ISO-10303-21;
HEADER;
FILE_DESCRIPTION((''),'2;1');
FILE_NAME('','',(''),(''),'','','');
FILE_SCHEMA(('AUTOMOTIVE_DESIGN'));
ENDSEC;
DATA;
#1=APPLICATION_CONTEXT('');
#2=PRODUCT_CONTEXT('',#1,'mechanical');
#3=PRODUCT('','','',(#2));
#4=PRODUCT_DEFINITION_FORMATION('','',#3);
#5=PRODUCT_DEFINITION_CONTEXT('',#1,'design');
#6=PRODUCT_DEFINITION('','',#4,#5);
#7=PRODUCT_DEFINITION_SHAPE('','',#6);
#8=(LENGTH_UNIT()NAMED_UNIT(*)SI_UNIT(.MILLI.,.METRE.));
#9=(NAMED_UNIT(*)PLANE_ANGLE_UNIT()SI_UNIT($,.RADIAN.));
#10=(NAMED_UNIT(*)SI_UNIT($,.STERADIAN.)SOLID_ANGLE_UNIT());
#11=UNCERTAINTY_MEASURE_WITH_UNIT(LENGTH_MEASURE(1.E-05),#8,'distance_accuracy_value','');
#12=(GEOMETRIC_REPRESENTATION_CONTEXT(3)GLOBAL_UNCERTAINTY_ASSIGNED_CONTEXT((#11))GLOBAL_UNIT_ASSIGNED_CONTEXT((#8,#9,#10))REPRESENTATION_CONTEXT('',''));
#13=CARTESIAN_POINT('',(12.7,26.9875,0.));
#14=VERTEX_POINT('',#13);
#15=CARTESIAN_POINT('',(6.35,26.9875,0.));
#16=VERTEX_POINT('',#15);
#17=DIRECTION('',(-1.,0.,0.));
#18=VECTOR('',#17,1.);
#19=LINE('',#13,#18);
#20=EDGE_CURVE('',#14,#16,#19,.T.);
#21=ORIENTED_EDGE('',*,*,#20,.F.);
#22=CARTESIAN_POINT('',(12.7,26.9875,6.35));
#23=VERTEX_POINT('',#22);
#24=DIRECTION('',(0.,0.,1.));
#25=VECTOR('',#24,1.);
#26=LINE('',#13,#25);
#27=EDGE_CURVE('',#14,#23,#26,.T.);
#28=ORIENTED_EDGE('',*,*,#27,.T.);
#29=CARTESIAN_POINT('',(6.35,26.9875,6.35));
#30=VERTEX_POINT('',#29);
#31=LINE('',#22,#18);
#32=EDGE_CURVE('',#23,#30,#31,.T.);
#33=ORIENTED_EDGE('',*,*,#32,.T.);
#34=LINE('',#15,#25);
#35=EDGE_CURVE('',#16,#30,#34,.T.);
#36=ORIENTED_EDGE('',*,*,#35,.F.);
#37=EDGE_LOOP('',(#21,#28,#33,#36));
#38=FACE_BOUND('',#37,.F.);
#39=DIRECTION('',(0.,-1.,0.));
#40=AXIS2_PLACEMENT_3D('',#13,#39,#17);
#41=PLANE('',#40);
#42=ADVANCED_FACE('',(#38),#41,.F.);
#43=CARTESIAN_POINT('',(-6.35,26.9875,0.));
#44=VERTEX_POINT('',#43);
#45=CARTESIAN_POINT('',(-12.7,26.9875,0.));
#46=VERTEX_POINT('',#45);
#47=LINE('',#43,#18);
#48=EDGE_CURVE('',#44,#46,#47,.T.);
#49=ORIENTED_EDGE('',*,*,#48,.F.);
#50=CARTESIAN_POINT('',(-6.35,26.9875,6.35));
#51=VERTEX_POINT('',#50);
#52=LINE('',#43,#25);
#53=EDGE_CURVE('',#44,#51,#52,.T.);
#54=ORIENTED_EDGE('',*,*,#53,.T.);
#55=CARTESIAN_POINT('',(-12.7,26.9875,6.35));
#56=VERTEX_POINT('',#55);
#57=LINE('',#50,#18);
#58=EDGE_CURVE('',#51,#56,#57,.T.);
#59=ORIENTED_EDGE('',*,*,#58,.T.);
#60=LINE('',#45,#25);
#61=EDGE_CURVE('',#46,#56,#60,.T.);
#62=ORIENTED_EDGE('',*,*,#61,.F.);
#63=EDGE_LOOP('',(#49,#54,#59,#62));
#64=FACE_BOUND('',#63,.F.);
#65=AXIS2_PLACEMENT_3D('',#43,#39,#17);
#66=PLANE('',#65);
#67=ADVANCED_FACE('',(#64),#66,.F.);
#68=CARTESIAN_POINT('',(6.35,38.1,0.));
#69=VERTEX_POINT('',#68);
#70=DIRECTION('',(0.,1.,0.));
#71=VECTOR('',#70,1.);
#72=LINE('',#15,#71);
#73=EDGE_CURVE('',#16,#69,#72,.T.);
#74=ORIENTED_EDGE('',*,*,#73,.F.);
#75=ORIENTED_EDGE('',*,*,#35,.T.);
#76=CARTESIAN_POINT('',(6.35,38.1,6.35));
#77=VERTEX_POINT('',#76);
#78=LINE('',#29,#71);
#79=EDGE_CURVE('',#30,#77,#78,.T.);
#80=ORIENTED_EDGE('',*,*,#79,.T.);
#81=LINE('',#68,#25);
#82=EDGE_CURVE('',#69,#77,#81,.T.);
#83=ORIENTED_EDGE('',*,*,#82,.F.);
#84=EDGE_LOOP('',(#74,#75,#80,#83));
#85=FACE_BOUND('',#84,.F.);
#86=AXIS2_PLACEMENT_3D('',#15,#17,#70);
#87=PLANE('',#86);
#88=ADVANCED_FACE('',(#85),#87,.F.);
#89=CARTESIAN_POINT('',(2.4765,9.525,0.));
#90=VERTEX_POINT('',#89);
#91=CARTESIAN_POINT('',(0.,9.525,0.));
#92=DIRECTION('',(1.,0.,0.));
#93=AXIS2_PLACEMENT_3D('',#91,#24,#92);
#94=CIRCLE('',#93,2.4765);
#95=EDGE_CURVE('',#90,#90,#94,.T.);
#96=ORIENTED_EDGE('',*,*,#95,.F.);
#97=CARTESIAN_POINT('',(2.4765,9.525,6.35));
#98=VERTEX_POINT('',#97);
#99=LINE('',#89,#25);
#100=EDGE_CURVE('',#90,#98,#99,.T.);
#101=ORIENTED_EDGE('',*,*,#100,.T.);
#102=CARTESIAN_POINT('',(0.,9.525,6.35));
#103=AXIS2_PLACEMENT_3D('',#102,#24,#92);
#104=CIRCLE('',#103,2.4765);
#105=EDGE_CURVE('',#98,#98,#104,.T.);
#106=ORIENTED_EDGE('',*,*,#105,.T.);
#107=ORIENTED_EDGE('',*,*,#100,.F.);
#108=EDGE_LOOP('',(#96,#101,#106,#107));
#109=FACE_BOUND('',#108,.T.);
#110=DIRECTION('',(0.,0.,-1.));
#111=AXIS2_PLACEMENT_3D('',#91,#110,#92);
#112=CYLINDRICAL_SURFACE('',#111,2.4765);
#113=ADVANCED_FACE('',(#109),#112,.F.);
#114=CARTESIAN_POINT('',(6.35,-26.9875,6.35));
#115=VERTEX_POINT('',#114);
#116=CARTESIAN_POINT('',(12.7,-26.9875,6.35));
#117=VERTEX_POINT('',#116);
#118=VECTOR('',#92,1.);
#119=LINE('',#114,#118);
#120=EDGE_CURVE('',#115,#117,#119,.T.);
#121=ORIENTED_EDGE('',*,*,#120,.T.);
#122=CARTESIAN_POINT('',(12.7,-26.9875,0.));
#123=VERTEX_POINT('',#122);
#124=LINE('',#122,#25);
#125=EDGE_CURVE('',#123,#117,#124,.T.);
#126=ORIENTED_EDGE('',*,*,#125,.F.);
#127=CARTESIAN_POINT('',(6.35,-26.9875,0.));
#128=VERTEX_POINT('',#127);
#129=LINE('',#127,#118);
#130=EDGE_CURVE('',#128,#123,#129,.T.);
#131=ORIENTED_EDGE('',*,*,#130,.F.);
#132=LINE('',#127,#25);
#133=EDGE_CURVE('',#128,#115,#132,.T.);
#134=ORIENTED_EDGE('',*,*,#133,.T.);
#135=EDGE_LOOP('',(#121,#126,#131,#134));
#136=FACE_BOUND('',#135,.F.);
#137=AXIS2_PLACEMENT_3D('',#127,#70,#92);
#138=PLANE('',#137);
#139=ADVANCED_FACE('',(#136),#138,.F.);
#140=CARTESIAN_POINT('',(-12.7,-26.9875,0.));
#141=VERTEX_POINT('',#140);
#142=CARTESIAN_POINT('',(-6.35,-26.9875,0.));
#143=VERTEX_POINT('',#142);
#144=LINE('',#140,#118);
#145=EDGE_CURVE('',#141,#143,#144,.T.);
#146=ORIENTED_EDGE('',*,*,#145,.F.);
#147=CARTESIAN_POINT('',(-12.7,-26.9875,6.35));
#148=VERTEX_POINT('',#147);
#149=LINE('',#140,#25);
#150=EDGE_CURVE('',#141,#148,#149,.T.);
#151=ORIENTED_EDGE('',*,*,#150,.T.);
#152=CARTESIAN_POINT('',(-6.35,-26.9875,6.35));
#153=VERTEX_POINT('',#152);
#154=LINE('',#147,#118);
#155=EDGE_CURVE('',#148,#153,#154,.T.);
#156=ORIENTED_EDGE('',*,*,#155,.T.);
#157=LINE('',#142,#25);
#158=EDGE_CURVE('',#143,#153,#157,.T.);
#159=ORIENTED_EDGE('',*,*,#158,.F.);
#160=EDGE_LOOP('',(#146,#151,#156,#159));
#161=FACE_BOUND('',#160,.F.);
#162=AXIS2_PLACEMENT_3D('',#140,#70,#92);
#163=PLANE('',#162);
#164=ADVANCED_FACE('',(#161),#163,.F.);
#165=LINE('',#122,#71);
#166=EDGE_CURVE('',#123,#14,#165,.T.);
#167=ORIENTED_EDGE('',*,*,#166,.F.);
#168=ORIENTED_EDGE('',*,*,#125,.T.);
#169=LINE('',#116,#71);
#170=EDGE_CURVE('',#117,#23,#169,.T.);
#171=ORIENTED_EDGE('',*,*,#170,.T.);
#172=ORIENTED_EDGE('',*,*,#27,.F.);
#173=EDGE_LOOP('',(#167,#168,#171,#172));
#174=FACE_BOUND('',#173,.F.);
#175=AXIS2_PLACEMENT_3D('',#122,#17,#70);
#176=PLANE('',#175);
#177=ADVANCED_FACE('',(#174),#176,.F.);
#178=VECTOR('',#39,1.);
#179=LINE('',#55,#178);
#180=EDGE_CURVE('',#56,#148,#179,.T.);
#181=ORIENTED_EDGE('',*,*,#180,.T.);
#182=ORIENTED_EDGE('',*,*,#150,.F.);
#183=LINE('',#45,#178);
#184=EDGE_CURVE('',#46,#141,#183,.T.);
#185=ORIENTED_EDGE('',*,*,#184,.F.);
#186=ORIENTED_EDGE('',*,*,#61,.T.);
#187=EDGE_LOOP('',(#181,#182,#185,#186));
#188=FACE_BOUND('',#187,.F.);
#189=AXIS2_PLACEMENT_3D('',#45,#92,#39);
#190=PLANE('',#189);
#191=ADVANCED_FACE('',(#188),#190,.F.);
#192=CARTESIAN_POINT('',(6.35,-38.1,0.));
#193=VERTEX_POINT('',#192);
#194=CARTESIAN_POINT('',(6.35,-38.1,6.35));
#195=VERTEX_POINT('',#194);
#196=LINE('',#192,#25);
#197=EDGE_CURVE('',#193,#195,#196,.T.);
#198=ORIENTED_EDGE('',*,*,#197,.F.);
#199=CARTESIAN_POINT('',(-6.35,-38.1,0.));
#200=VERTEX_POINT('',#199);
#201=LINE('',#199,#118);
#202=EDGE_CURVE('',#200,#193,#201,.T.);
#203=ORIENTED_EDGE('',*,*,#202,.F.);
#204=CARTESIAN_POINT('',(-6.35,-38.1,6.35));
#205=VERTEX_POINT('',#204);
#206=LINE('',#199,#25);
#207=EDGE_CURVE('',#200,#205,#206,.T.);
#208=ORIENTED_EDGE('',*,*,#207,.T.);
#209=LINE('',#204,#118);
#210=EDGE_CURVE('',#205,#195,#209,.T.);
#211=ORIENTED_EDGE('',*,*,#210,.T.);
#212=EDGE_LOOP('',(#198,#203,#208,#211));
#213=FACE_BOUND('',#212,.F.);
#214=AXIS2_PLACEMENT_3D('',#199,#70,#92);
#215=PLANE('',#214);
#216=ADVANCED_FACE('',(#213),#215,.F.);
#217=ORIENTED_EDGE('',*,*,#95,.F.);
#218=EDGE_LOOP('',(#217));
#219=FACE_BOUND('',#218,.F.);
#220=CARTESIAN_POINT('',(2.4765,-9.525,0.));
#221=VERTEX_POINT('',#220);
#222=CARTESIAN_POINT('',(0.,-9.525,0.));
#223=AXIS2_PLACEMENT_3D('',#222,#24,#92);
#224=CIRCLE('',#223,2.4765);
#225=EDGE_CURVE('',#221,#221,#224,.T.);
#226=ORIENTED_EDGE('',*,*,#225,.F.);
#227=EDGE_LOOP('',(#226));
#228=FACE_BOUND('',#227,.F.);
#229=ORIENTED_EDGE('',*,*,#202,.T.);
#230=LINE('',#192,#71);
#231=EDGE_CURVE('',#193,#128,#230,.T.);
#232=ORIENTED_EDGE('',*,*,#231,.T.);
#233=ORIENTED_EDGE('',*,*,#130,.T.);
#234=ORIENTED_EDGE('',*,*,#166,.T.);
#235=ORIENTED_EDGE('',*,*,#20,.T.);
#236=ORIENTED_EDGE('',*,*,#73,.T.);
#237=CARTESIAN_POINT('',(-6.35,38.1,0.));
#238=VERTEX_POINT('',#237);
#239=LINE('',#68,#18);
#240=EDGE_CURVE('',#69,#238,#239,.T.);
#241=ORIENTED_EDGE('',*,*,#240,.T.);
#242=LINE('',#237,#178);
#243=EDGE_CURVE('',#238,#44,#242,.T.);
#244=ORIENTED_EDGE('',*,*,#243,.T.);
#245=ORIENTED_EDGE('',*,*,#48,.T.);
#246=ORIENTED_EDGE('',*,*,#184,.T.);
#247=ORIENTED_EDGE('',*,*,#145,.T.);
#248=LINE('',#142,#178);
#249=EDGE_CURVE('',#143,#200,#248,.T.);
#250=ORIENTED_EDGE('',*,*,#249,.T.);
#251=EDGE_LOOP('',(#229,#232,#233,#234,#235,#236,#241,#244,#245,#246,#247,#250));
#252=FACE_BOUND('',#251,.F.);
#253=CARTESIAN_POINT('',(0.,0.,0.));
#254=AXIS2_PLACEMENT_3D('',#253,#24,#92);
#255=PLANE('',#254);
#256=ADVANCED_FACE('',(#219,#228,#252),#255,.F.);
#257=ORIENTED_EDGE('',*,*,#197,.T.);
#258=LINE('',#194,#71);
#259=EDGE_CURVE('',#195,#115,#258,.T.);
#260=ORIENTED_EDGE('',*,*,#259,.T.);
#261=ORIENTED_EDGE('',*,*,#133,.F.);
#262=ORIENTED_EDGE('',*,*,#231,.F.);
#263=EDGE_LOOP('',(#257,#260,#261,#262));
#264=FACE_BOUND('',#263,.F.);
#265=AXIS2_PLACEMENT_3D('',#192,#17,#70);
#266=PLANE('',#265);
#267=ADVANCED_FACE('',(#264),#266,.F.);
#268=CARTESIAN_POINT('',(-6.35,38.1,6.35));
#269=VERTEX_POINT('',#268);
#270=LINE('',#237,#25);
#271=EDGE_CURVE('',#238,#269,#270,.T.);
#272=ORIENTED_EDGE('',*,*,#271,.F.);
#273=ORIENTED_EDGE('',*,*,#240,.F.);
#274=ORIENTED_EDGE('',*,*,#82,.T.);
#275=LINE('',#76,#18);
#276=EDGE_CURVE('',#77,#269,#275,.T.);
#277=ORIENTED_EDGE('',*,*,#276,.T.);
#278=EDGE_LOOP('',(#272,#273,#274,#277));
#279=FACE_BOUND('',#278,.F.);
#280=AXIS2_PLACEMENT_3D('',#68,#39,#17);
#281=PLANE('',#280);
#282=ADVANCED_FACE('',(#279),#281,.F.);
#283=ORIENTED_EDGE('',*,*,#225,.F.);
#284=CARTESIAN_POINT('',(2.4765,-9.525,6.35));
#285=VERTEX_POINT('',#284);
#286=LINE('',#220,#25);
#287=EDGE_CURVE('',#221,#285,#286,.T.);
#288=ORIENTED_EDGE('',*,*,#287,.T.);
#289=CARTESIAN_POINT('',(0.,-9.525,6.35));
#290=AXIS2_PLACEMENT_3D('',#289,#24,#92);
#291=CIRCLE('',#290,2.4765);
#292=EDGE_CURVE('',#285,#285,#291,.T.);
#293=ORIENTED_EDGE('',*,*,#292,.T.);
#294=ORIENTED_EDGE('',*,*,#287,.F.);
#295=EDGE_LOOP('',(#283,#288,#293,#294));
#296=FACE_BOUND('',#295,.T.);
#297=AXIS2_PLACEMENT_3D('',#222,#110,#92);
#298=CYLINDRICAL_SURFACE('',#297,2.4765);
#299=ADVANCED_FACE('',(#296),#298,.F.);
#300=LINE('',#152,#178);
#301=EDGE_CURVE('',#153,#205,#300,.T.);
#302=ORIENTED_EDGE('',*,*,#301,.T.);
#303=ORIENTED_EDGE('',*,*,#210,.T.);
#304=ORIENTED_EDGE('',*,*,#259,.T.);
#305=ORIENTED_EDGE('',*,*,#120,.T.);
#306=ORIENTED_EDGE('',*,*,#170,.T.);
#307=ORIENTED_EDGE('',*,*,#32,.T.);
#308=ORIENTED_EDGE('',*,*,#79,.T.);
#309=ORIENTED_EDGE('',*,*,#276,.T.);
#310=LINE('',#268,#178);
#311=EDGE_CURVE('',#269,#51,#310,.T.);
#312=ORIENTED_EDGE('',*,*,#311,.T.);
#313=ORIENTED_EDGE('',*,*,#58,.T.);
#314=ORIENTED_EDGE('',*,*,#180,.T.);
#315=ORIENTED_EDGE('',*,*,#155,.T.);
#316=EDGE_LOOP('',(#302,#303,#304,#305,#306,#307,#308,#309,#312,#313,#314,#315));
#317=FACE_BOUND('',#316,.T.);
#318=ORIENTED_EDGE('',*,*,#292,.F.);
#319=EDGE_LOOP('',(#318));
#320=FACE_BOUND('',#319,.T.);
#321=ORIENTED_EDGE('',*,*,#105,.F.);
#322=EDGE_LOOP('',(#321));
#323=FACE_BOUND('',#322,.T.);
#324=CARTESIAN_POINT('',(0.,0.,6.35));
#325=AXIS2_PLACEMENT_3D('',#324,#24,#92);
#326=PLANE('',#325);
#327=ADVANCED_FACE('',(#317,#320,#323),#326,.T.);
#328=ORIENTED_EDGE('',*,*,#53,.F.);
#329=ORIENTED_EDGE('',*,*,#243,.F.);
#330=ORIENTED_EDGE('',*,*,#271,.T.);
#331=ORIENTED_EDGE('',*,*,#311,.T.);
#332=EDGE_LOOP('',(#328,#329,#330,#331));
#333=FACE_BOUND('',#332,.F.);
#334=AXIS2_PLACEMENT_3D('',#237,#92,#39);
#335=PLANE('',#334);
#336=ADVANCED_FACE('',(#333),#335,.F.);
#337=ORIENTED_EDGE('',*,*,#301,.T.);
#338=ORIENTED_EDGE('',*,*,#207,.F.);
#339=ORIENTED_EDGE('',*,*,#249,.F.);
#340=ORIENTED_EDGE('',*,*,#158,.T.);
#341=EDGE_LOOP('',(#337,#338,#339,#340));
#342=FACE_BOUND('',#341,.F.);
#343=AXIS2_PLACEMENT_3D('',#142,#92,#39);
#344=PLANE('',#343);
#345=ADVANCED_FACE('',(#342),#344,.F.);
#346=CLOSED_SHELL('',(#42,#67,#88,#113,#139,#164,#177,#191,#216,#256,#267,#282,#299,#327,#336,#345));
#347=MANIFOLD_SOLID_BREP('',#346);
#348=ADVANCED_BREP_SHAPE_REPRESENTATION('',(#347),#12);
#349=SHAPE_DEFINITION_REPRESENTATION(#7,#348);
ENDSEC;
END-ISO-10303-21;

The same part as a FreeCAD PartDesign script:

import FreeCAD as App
import Part
import Sketcher
from FreeCAD import Vector
Q = App.Units.Quantity

doc = App.newDocument("Part")
params = doc.addObject("Spreadsheet::Sheet", "Params")
for row, (alias, value) in enumerate([
    ("sketch1_diameter", "0.195 in"),
    ("sketch1_width", "0.5 in"),
    ("sketch1_height", "2.125 in"),
    ("pad1_length", "0.25 in"),
], start=1):
    params.set(f"A{row}", alias)
    params.set(f"B{row}", "=" + value)
    params.setAlias(f"B{row}", alias)

body = doc.addObject("PartDesign::Body", "Body")

# Sketch on XY plane
sketch1 = doc.addObject("Sketcher::SketchObject", "Sketch")
body.addObject(sketch1)
sketch1.AttachmentSupport = (doc.XY_Plane, [""])
sketch1.MapMode = "FlatFace"
sketch1.addGeometry([
    Part.LineSegment(Vector(6.3, -27, 0), Vector(12.7, -27, 0)),  # 0
    Part.LineSegment(Vector(12.7, -27, 0), Vector(12.7, 27, 0)),  # 1
    Part.LineSegment(Vector(12.7, 27, 0), Vector(6.3, 27, 0)),  # 2
    Part.LineSegment(Vector(6.3, 27, 0), Vector(6.3, 38.1, 0)),  # 3
    Part.LineSegment(Vector(6.3, 38.1, 0), Vector(-6.3, 38.1, 0)),  # 4
    Part.LineSegment(Vector(-6.3, 38.1, 0), Vector(-6.3, 27, 0)),  # 5
    Part.LineSegment(Vector(-6.3, 27, 0), Vector(-12.7, 27, 0)),  # 6
    Part.LineSegment(Vector(-12.7, 27, 0), Vector(-12.7, -27, 0)),  # 7
    Part.LineSegment(Vector(-12.7, -27, 0), Vector(-6.3, -27, 0)),  # 8
    Part.LineSegment(Vector(-6.3, -27, 0), Vector(-6.3, -38.1, 0)),  # 9
    Part.LineSegment(Vector(-6.3, -38.1, 0), Vector(6.3, -38.1, 0)),  # 10
    Part.LineSegment(Vector(6.3, -38.1, 0), Vector(6.3, -27, 0)),  # 11
    Part.Circle(Vector(0, -9.5, 0), Vector(0, 0, 1), 2.5),  # 12
    Part.Circle(Vector(0, 9.5, 0), Vector(0, 0, 1), 2.5),  # 13
], False)
sketch1.addConstraint([
    Sketcher.Constraint("Coincident", 0, 2, 1, 1),
    Sketcher.Constraint("Coincident", 1, 2, 2, 1),
    Sketcher.Constraint("Coincident", 2, 2, 3, 1),
    Sketcher.Constraint("Coincident", 3, 2, 4, 1),
    Sketcher.Constraint("Coincident", 4, 2, 5, 1),
    Sketcher.Constraint("Coincident", 5, 2, 6, 1),
    Sketcher.Constraint("Coincident", 6, 2, 7, 1),
    Sketcher.Constraint("Coincident", 7, 2, 8, 1),
    Sketcher.Constraint("Coincident", 8, 2, 9, 1),
    Sketcher.Constraint("Coincident", 9, 2, 10, 1),
    Sketcher.Constraint("Coincident", 10, 2, 11, 1),
    Sketcher.Constraint("Coincident", 11, 2, 0, 1),
    Sketcher.Constraint("Horizontal", 0),
    Sketcher.Constraint("Vertical", 1),
    Sketcher.Constraint("Horizontal", 2),
    Sketcher.Constraint("Vertical", 3),
    Sketcher.Constraint("Horizontal", 4),
    Sketcher.Constraint("Vertical", 5),
    Sketcher.Constraint("Horizontal", 6),
    Sketcher.Constraint("Vertical", 7),
    Sketcher.Constraint("Horizontal", 8),
    Sketcher.Constraint("Vertical", 9),
    Sketcher.Constraint("Horizontal", 10),
    Sketcher.Constraint("Vertical", 11),
    Sketcher.Constraint("Equal", 12, 13),
    Sketcher.Constraint("Symmetric", 12, 3, 13, 3, -1, 1),
    Sketcher.Constraint("Symmetric", 0, 2, 6, 2, -1, 1),
    Sketcher.Constraint("Symmetric", 2, 2, 8, 2, -1, 1),
    Sketcher.Constraint("Symmetric", 4, 2, 10, 2, -1, 1),
    Sketcher.Constraint("Symmetric", 2, 2, 5, 2, -2),
    Sketcher.Constraint("PointOnObject", 12, 3, -2),
    Sketcher.Constraint("Diameter", 12, Q("0.195 in")),
    Sketcher.Constraint("DistanceX", 4, 2, 4, 1, Q("0.5 in")),
    Sketcher.Constraint("DistanceX", 7, 2, 0, 2, Q("1 in")),
    Sketcher.Constraint("DistanceY", -1, 1, 3, 2, Q("1.5 in")),
    Sketcher.Constraint("DistanceY", 1, 1, 1, 2, Q("2.125 in")),
    Sketcher.Constraint("DistanceY", 12, 3, 13, 3, Q("0.75 in")),
])
sketch1.setExpression("Constraints[31]", "Params.sketch1_diameter")
sketch1.setExpression("Constraints[32]", "Params.sketch1_width")
sketch1.setExpression("Constraints[35]", "Params.sketch1_height")
pad1 = doc.addObject("PartDesign::Pad", "Pad")
body.addObject(pad1)
pad1.Profile = sketch1
pad1.setExpression("Length", "Params.pad1_length")

doc.recompute()
